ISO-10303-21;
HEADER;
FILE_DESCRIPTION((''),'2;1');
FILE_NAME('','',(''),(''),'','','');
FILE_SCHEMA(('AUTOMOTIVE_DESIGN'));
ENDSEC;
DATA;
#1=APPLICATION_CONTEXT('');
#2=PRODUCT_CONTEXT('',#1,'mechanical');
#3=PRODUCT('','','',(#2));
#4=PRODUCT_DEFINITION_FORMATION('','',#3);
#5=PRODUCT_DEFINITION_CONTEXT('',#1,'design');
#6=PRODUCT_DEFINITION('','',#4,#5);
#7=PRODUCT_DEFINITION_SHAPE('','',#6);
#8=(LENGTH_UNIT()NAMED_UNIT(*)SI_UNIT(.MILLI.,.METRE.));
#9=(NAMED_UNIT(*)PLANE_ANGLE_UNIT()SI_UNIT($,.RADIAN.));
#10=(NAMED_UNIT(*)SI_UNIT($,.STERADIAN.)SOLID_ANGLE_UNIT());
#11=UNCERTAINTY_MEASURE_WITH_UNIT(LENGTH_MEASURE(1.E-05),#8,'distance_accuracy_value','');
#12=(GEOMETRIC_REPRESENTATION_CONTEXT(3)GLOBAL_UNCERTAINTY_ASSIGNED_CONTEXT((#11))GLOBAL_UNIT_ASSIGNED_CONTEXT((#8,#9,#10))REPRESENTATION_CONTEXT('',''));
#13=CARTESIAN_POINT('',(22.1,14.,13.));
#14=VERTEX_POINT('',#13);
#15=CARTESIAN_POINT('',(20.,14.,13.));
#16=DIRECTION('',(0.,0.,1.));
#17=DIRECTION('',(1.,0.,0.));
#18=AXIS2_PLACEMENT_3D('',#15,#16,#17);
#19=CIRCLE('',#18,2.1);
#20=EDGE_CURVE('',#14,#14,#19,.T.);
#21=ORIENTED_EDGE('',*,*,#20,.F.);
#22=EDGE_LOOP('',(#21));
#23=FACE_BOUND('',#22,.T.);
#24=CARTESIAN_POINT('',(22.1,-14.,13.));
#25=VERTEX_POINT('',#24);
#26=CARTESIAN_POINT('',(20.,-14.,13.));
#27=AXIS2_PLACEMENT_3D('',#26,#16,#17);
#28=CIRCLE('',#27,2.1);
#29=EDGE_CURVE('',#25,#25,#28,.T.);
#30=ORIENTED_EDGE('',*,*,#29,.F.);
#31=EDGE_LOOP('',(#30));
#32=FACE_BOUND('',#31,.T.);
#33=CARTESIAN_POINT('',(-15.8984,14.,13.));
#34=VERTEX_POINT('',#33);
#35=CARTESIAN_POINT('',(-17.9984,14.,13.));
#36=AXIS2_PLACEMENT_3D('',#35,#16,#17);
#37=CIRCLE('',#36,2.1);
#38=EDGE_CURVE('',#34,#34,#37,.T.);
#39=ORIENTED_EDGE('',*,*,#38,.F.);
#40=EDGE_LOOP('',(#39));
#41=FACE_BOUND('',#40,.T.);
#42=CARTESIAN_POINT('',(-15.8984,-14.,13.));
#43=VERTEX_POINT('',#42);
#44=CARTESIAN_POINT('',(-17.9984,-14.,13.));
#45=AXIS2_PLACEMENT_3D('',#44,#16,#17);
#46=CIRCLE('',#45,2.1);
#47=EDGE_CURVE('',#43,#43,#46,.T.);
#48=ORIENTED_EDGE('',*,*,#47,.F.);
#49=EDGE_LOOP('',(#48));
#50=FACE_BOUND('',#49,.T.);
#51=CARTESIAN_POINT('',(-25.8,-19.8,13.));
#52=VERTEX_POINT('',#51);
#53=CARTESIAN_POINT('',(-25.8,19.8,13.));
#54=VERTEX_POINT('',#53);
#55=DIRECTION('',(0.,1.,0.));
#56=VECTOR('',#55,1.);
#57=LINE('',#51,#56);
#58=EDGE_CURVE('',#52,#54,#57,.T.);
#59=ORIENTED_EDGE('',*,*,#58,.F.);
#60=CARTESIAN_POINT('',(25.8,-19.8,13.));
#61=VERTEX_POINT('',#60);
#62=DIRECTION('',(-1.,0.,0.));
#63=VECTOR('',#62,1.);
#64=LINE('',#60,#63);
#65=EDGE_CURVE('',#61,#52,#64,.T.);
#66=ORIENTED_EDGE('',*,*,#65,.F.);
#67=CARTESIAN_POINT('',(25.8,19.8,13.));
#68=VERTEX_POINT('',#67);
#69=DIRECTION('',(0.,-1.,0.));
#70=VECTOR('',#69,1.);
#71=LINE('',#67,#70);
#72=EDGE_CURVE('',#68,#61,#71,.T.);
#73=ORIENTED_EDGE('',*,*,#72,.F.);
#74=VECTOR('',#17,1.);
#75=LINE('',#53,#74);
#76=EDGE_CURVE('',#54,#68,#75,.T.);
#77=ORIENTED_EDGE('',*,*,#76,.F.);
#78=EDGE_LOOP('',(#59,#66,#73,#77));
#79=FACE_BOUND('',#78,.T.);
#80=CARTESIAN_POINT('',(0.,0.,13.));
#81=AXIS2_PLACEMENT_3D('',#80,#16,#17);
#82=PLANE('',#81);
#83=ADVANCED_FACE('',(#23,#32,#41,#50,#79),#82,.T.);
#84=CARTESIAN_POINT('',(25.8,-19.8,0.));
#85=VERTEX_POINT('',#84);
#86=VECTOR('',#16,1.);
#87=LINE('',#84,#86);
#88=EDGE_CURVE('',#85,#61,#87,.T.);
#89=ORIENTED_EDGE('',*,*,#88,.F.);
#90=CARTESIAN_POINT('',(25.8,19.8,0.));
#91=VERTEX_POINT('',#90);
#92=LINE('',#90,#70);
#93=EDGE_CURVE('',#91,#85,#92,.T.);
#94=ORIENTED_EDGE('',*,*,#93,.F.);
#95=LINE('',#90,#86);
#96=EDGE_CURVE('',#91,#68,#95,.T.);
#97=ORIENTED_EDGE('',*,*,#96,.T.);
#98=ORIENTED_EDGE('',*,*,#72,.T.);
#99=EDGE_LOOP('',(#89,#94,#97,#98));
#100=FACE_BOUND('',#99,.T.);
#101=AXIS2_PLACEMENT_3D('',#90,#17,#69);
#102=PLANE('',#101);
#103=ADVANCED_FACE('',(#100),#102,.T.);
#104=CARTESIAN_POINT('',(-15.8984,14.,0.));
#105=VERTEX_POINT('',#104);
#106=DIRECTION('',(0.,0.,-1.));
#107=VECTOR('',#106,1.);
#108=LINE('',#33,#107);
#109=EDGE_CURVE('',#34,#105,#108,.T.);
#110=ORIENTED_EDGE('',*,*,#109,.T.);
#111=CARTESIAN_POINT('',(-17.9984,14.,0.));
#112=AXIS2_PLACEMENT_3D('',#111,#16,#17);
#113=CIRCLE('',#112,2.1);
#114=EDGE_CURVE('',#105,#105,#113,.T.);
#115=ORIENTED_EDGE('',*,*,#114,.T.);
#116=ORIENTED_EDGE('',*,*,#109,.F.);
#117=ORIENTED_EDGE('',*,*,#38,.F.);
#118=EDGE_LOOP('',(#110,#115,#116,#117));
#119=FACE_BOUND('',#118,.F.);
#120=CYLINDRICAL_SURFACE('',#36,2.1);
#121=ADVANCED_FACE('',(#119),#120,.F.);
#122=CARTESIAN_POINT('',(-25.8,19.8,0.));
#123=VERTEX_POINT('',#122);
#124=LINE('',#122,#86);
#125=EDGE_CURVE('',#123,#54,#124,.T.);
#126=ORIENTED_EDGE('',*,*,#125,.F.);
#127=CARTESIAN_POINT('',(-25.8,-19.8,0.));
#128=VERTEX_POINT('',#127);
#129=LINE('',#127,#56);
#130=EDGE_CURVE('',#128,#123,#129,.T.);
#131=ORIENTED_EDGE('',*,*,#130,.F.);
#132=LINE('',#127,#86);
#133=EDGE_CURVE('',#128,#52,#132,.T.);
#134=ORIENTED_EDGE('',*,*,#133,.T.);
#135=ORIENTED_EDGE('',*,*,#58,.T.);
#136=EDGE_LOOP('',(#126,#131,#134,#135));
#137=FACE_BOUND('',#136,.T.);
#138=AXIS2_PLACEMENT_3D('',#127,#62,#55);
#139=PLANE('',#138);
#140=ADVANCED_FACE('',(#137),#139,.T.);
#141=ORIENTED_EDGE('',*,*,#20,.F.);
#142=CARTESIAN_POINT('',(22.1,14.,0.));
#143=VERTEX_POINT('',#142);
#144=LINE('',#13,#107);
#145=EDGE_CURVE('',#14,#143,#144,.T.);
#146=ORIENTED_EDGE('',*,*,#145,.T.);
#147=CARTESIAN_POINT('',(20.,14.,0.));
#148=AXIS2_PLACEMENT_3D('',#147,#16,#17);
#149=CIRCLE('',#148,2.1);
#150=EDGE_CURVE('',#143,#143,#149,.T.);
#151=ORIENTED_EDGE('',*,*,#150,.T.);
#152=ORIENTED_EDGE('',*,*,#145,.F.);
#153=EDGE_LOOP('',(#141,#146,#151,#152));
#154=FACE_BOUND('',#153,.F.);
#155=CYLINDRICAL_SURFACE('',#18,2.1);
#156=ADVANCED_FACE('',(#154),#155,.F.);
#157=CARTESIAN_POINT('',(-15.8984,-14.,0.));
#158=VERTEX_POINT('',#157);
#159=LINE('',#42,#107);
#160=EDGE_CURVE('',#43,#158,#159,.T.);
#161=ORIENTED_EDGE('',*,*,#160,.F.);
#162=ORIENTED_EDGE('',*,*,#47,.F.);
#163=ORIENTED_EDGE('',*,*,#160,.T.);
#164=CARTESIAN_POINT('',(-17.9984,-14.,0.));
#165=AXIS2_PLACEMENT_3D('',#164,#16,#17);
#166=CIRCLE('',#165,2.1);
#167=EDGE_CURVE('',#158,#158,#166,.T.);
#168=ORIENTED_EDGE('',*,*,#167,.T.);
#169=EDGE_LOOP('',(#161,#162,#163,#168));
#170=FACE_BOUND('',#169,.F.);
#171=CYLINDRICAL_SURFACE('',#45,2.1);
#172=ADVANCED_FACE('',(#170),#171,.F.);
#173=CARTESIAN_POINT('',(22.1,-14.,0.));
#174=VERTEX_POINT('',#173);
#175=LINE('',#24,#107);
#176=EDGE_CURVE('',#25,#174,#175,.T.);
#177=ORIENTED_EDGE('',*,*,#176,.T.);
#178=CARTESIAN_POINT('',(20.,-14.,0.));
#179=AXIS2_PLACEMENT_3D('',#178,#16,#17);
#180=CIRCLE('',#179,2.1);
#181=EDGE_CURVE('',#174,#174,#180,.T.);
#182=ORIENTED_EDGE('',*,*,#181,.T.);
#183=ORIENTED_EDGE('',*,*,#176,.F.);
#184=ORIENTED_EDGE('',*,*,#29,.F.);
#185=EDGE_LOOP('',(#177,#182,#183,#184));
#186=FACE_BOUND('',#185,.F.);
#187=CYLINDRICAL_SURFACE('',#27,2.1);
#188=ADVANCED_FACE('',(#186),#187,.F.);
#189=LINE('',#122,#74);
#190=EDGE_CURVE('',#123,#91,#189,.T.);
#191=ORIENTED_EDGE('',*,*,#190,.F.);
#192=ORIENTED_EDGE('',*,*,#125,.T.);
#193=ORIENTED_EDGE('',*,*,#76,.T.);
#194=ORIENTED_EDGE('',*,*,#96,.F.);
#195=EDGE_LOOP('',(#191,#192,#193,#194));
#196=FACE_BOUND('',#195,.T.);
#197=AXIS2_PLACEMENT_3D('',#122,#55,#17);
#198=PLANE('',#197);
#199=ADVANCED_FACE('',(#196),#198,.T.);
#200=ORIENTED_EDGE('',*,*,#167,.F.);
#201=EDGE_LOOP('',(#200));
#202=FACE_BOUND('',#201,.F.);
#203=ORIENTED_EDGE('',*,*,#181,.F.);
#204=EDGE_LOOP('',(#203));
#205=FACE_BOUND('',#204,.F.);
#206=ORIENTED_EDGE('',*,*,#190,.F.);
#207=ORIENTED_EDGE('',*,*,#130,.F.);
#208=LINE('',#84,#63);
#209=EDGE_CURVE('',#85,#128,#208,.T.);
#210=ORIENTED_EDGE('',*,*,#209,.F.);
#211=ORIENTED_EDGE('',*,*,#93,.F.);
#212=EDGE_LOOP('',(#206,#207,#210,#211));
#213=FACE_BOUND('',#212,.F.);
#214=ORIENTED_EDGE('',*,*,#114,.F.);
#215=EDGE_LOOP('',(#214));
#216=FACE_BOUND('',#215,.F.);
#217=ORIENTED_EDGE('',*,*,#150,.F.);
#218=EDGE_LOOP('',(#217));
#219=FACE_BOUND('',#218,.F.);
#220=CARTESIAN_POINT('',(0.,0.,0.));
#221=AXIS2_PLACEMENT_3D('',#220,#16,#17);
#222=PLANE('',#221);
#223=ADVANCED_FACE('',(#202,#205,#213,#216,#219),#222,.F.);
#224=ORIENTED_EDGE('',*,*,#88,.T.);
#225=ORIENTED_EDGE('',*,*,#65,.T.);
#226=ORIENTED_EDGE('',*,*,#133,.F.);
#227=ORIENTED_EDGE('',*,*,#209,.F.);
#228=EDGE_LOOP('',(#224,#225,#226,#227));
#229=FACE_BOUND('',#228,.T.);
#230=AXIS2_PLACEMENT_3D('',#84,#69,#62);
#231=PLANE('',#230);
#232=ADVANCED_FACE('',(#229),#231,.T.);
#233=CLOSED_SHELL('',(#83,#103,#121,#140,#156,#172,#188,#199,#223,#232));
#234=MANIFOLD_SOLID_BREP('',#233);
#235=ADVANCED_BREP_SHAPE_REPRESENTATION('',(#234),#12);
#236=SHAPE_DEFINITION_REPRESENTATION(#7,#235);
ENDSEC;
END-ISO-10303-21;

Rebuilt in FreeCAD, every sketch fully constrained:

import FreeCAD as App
import Part
import Sketcher

V = App.Vector
Q = App.Units.Quantity


def add_polygon(sketch, points):
    """Adds a closed chain of lines whose ends are joined by coincident constraints."""
    first, n = sketch.GeometryCount, len(points)
    for a, b in zip(points, points[1:] + points[:1]):
        sketch.addGeometry(Part.LineSegment(App.Vector(*a, 0), App.Vector(*b, 0)), False)
    for i in range(n):
        sketch.addConstraint(Sketcher.Constraint("Coincident", first + i, 2, first + (i + 1) % n, 1))

doc = App.newDocument("Part")
body = doc.addObject("PartDesign::Body", "Body")

# Sketch on XY plane
sketch1 = doc.addObject("Sketcher::SketchObject", "Sketch")
body.addObject(sketch1)
sketch1.AttachmentSupport = (doc.XY_Plane, [""])
sketch1.MapMode = "FlatFace"
add_polygon(sketch1, [(25.8, 19.8), (-25.8, 19.8), (-25.8, -19.8), (25.8, -19.8)])  # lines 0-3
sketch1.addConstraint([
    Sketcher.Constraint("Horizontal", 0),
    Sketcher.Constraint("Vertical", 1),
    Sketcher.Constraint("Horizontal", 2),
    Sketcher.Constraint("Vertical", 3),
    Sketcher.Constraint("Symmetric", 0, 2, 2, 2, -1, 1),
    Sketcher.Constraint("DistanceX", 0, 2, 0, 1, Q("51.6 mm")),
    Sketcher.Constraint("DistanceY", 1, 2, 1, 1, Q("39.6 mm")),
])
pad1 = doc.addObject("PartDesign::Pad", "Pad")
body.addObject(pad1)
pad1.Profile = sketch1
pad1.Length = 13

# Sketch on XY plane
sketch2 = doc.addObject("Sketcher::SketchObject", "Sketch001")
body.addObject(sketch2)
sketch2.AttachmentSupport = (doc.XY_Plane, [""])
sketch2.MapMode = "FlatFace"
sketch2.AttachmentOffset = App.Placement(V(0, 0, 13), App.Rotation())
sketch2.addGeometry([
    Part.Circle(V(-17.9984, 14, 0), V(0, 0, 1), 2.1),
    Part.Circle(V(20, 14, 0), V(0, 0, 1), 2.1),
    Part.Circle(V(-17.9984, -14, 0), V(0, 0, 1), 2.1),
    Part.Circle(V(20, -14, 0), V(0, 0, 1), 2.1),
], False)
sketch2.addConstraint([
    Sketcher.Constraint("Equal", 0, 1),
    Sketcher.Constraint("Equal", 1, 2),
    Sketcher.Constraint("Equal", 2, 3),
    Sketcher.Constraint("Symmetric", 0, 3, 2, 3, -1),
    Sketcher.Constraint("Symmetric", 1, 3, 3, 3, -1),
    Sketcher.Constraint("Horizontal", 0, 3, 1, 3),
    Sketcher.Constraint("Diameter", 0, Q("4.2 mm")),
    Sketcher.Constraint("DistanceY", -1, 1, 0, 3, Q("14 mm")),
    Sketcher.Constraint("DistanceX", -1, 1, 1, 3, Q("20 mm")),
    Sketcher.Constraint("DistanceX", 0, 3, -1, 1, Q("17.9984 mm")),
])
pocket1 = doc.addObject("PartDesign::Pocket", "Pocket")
body.addObject(pocket1)
pocket1.Profile = sketch2
pocket1.Type = "ThroughAll"

doc.recompute()
